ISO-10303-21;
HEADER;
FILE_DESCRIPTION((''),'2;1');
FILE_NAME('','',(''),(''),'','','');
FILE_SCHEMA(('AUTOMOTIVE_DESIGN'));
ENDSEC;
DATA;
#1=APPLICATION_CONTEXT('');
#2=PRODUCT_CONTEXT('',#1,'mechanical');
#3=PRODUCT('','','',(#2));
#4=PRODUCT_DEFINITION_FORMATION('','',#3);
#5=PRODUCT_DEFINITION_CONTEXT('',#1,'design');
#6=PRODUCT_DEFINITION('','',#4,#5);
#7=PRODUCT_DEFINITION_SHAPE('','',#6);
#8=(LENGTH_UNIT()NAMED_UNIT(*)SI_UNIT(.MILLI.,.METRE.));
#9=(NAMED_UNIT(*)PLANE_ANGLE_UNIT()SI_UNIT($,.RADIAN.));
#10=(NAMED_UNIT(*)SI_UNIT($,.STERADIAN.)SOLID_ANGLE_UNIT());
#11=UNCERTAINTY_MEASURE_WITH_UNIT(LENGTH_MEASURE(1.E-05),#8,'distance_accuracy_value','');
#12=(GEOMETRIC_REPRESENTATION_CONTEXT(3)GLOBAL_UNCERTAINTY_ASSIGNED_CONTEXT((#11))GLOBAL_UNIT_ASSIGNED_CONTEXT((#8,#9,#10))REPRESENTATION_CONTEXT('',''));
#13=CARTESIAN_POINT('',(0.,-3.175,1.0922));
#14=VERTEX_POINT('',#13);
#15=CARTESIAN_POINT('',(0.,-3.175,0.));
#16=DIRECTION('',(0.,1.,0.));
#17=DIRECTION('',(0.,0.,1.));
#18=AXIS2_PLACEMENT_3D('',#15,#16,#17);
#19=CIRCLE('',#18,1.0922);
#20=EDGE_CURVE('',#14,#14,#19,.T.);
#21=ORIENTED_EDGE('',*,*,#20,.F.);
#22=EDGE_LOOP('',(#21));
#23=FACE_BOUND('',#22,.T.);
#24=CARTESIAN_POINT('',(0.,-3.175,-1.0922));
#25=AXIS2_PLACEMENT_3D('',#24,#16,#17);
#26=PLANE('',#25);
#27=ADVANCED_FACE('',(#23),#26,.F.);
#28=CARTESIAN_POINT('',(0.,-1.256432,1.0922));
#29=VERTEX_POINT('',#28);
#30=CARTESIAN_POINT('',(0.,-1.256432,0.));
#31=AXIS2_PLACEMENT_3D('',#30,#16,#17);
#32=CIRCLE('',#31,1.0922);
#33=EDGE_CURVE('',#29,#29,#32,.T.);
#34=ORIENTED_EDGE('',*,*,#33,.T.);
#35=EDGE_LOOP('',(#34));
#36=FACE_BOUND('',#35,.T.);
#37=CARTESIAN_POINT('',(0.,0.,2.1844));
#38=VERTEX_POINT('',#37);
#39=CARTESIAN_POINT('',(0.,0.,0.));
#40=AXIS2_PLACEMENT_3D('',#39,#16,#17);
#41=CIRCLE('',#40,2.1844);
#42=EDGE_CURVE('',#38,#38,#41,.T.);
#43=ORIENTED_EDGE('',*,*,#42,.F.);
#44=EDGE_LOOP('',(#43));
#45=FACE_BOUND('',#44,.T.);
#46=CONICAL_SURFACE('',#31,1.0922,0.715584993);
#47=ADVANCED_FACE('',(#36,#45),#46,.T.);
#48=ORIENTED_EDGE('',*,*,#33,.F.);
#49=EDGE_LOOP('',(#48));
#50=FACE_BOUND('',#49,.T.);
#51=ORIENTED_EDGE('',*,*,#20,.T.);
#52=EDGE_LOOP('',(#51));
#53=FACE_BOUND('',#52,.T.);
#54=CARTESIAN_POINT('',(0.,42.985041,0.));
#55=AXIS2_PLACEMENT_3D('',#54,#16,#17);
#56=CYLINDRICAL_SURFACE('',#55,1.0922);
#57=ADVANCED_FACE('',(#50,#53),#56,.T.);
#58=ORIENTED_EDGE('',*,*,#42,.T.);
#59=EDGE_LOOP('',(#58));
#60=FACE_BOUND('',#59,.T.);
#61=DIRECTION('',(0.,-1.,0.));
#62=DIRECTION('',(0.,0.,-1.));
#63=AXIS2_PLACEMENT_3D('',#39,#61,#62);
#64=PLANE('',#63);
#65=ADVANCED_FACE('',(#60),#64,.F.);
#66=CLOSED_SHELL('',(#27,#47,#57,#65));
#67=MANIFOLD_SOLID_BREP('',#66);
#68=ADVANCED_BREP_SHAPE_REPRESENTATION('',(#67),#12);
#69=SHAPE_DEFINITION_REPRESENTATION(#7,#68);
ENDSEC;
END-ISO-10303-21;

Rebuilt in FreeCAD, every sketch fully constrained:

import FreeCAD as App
import Part
import Sketcher

V = App.Vector
Q = App.Units.Quantity

doc = App.newDocument("Part")
body = doc.addObject("PartDesign::Body", "Body")

# Sketch on YZ plane
sketch1 = body.newObject("Sketcher::SketchObject", "Sketch")
sketch1.AttachmentSupport = (doc.getObject("YZ_Plane"), [""])
sketch1.MapMode = "FlatFace"
sketch1.addGeometry([
    Part.LineSegment(V(0, -2.2, 0), V(0, 0, 0)),  # 0
    Part.LineSegment(V(0, 0, 0), V(-3.2, 0, 0)),  # 1
    Part.LineSegment(V(-3.2, 0, 0), V(-3.2, -1.1, 0)),  # 2
    Part.LineSegment(V(-3.2, -1.1, 0), V(-1.3, -1.1, 0)),  # 3
    Part.LineSegment(V(-1.3, -1.1, 0), V(0, -2.2, 0)),  # 4
], False)
sketch1.addConstraint([
    Sketcher.Constraint("Coincident", 0, 2, 1, 1),
    Sketcher.Constraint("Coincident", 1, 2, 2, 1),
    Sketcher.Constraint("Coincident", 2, 2, 3, 1),
    Sketcher.Constraint("Coincident", 3, 2, 4, 1),
    Sketcher.Constraint("Coincident", 4, 2, 0, 1),
    Sketcher.Constraint("Vertical", 0),
    Sketcher.Constraint("Horizontal", 1),
    Sketcher.Constraint("Vertical", 2),
    Sketcher.Constraint("Horizontal", 3),
    Sketcher.Constraint("Coincident", 0, 2, -1, 1),
    Sketcher.Constraint("Angle", 4, Q("-41 deg")),
    Sketcher.Constraint("DistanceX", 1, 2, 1, 1, Q("0.125 in")),
    Sketcher.Constraint("DistanceY", 0, 1, 0, 2, Q("0.086 in")),
    Sketcher.Constraint("DistanceY", 2, 2, 2, 1, Q("0.043 in")),
])
revolution = body.newObject("PartDesign::Revolution", "Revolution")
revolution.Profile = sketch1
revolution.ReferenceAxis = (sketch1, ["H_Axis"])
revolution.Angle = 360

doc.recompute()
